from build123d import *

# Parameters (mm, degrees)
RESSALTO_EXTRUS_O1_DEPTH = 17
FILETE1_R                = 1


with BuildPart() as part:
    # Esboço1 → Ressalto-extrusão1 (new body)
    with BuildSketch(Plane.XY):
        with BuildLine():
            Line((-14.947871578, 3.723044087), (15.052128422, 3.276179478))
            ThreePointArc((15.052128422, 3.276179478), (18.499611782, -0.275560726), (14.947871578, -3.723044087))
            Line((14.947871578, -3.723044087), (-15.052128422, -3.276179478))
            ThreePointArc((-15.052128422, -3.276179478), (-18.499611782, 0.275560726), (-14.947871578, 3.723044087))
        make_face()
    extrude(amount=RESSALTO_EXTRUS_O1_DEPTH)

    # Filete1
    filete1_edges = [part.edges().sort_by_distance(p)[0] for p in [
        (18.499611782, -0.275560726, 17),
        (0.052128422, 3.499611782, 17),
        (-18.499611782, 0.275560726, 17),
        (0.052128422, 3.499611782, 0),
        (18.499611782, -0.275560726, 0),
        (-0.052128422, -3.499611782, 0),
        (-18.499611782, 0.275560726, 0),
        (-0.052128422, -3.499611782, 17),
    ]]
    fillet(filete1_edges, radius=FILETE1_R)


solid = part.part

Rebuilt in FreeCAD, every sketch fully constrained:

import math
import FreeCAD as App
import Part
import Sketcher
from FreeCAD import Vector
Q = App.Units.Quantity


def edges_at(feature, points):
    """Names of the edges that pass closest to the given points."""
    edges = feature.Shape.Edges
    near = lambda p: min(range(len(edges)), key=lambda i: edges[i].distToShape(Part.Vertex(*p))[0])
    return sorted({f"Edge{near(p) + 1}" for p in points})

doc = App.newDocument("Part")
params = doc.addObject("Spreadsheet::Sheet", "Params")
for row, (alias, value) in enumerate([
    ("sketch1_radius", "3.5 mm"),
    ("pad1_length", "17 mm"),
    ("fillet_radius", "1 mm"),
], start=1):
    params.set(f"A{row}", alias)
    params.set(f"B{row}", "=" + value)
    params.setAlias(f"B{row}", alias)

body = doc.addObject("PartDesign::Body", "Body")

# Sketch on XY plane
sketch1 = body.newObject("Sketcher::SketchObject", "Sketch")
sketch1.AttachmentSupport = (doc.getObject("XY_Plane"), [""])
sketch1.MapMode = "FlatFace"
sketch1.addGeometry([
    Part.LineSegment(Vector(15.1, 3.3, 0), Vector(-14.9, 3.7, 0)),
    Part.ArcOfCircle(Part.Circle(Vector(-15, 0.2, 0), Vector(0, 0, 1), 3.5), math.radians(89), math.radians(269)),
    Part.LineSegment(Vector(-15.1, -3.3, 0), Vector(14.9, -3.7, 0)),
    Part.ArcOfCircle(Part.Circle(Vector(15, -0.2, 0), Vector(0, 0, 1), 3.5), math.radians(-91), math.radians(89)),
], False)
sketch1.addConstraint([
    Sketcher.Constraint("Tangent", 0, 2, 1, 1),
    Sketcher.Constraint("Tangent", 1, 2, 2, 1),
    Sketcher.Constraint("Tangent", 2, 2, 3, 1),
    Sketcher.Constraint("Tangent", 3, 2, 0, 1),
    Sketcher.Constraint("Equal", 1, 3),
    Sketcher.Constraint("Symmetric", 1, 3, 3, 3, -1, 1),
    Sketcher.Constraint("Radius", 1, Q("3.5 mm")),
    Sketcher.Constraint("DistanceX", 1, 3, -1, 1, Q("15 mm")),
    Sketcher.Constraint("DistanceX", 0, 2, -1, 1, Q("14.947872 mm")),
])
sketch1.setExpression("Constraints[6]", "Params.sketch1_radius")
pad1 = body.newObject("PartDesign::Pad", "Pad")
pad1.Profile = sketch1
pad1.setExpression("Length", "Params.pad1_length")
doc.recompute()

fillet = body.newObject("PartDesign::Fillet", "Fillet")
fillet.Base = (pad1, edges_at(pad1, [
    (18.5, -0.276, 17),
    (0.052, 3.5, 17),
    (-18.5, 0.276, 17),
    (0.052, 3.5, 0),
    (18.5, -0.276, 0),
    (-0.052, -3.5, 0),
    (-18.5, 0.276, 0),
    (-0.052, -3.5, 17),
]))
fillet.setExpression("Radius", "Params.fillet_radius")

doc.recompute()
